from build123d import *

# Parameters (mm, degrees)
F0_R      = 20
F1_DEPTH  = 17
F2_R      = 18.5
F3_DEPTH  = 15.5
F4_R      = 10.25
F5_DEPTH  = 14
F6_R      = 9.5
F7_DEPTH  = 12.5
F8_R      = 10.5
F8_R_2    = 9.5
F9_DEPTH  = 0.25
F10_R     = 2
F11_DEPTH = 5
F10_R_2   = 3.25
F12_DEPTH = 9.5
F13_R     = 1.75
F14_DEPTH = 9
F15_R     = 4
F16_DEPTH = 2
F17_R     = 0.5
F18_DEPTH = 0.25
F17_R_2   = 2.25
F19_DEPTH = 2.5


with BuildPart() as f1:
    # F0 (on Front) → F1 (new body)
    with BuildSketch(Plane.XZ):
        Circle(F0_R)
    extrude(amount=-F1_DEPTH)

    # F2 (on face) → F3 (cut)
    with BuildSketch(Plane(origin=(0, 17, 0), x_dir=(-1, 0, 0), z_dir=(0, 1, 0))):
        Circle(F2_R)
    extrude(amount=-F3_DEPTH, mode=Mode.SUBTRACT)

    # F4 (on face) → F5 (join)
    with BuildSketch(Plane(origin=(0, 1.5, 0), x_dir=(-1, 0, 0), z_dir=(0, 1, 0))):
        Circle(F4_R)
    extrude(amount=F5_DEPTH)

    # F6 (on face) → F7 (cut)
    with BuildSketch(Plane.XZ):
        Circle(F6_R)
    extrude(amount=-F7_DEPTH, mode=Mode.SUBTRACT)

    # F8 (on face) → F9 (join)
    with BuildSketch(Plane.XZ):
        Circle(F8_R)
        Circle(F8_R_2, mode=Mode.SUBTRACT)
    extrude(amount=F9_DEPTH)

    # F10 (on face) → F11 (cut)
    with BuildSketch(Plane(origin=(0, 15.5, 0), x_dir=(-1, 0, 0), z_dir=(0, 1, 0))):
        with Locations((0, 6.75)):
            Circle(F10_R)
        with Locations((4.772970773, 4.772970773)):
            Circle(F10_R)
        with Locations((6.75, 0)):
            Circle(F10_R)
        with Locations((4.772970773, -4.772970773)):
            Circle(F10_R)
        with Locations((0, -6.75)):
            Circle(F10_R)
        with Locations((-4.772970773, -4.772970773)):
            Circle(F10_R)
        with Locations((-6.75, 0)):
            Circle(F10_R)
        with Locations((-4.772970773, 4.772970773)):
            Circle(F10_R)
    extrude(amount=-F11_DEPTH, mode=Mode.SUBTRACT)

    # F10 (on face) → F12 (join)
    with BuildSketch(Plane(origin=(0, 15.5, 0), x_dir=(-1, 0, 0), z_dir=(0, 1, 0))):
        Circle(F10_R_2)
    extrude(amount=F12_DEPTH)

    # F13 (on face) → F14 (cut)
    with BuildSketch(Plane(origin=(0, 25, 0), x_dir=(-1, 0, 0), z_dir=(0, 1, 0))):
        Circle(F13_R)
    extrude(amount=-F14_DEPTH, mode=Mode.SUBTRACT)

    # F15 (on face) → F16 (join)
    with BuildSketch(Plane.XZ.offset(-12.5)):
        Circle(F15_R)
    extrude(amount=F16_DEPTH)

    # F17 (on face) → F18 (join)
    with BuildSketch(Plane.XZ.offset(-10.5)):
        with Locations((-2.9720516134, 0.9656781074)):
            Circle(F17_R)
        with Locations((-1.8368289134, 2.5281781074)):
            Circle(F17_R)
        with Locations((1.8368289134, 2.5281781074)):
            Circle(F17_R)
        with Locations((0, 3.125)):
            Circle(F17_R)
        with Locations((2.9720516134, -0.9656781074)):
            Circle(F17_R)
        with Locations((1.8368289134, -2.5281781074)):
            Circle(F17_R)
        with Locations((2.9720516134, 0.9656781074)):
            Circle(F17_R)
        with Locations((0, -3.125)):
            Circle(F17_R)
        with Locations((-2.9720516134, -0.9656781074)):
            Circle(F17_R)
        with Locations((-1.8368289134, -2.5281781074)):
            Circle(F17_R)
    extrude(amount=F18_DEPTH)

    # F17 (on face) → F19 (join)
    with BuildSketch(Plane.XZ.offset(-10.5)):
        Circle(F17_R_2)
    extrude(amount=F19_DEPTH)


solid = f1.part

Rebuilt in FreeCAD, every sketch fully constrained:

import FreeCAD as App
import Part
import Sketcher
from FreeCAD import Vector
Q = App.Units.Quantity

doc = App.newDocument("Part")
body = doc.addObject("PartDesign::Body", "Body")

sketch1 = doc.addObject("Sketcher::SketchObject", "Sketch")
body.addObject(sketch1)
sketch1.AttachmentSupport = (doc.XZ_Plane, [""])
sketch1.MapMode = "FlatFace"
sketch1.addGeometry(Part.Circle(Vector(0, 0, 0), Vector(0, 0, 1), 20), False)
sketch1.addConstraint(Sketcher.Constraint("Coincident", 0, 3, -1, 1))
sketch1.addConstraint(Sketcher.Constraint("Diameter", 0, Q("40 mm")))
pad1 = doc.addObject("PartDesign::Pad", "Pad")
body.addObject(pad1)
pad1.Profile = sketch1
pad1.Length = 17
pad1.Reversed = True

sketch2 = doc.addObject("Sketcher::SketchObject", "Sketch001")
body.addObject(sketch2)
sketch2.AttachmentSupport = (doc.XZ_Plane, [""])
sketch2.MapMode = "FlatFace"
sketch2.AttachmentOffset = App.Placement(Vector(0, 0, -17), App.Rotation())
sketch2.addGeometry(Part.Circle(Vector(0, 0, 0), Vector(0, 0, 1), 18.5), False)
sketch2.addConstraint(Sketcher.Constraint("Coincident", 0, 3, -1, 1))
sketch2.addConstraint(Sketcher.Constraint("Diameter", 0, Q("37 mm")))
pocket1 = doc.addObject("PartDesign::Pocket", "Pocket")
body.addObject(pocket1)
pocket1.Profile = sketch2
pocket1.Length = 15.5
pocket1.Reversed = True

sketch3 = doc.addObject("Sketcher::SketchObject", "Sketch002")
body.addObject(sketch3)
sketch3.AttachmentSupport = (doc.XZ_Plane, [""])
sketch3.MapMode = "FlatFace"
sketch3.AttachmentOffset = App.Placement(Vector(0, 0, -1.5), App.Rotation())
sketch3.addGeometry(Part.Circle(Vector(0, 0, 0), Vector(0, 0, 1), 10.25), False)
sketch3.addConstraint(Sketcher.Constraint("Coincident", 0, 3, -1, 1))
sketch3.addConstraint(Sketcher.Constraint("Diameter", 0, Q("20.5 mm")))
pad2 = doc.addObject("PartDesign::Pad", "Pad001")
body.addObject(pad2)
pad2.Profile = sketch3
pad2.Length = 14
pad2.Reversed = True

sketch4 = doc.addObject("Sketcher::SketchObject", "Sketch003")
body.addObject(sketch4)
sketch4.AttachmentSupport = (doc.XZ_Plane, [""])
sketch4.MapMode = "FlatFace"
sketch4.addGeometry(Part.Circle(Vector(0, 0, 0), Vector(0, 0, 1), 9.5), False)
sketch4.addConstraint(Sketcher.Constraint("Coincident", 0, 3, -1, 1))
sketch4.addConstraint(Sketcher.Constraint("Diameter", 0, Q("19 mm")))
pocket2 = doc.addObject("PartDesign::Pocket", "Pocket001")
body.addObject(pocket2)
pocket2.Profile = sketch4
pocket2.Length = 12.5

sketch5 = doc.addObject("Sketcher::SketchObject", "Sketch004")
body.addObject(sketch5)
sketch5.AttachmentSupport = (doc.XZ_Plane, [""])
sketch5.MapMode = "FlatFace"
sketch5.addGeometry(Part.Circle(Vector(0, 0, 0), Vector(0, 0, 1), 10.5), False)
sketch5.addGeometry(Part.Circle(Vector(0, 0, 0), Vector(0, 0, 1), 9.5), False)
sketch5.addConstraint(Sketcher.Constraint("Coincident", 0, 3, -1, 1))
sketch5.addConstraint(Sketcher.Constraint("Coincident", 1, 3, -1, 1))
sketch5.addConstraint(Sketcher.Constraint("Diameter", 0, Q("21 mm")))
sketch5.addConstraint(Sketcher.Constraint("Diameter", 1, Q("19 mm")))
pad3 = doc.addObject("PartDesign::Pad", "Pad002")
body.addObject(pad3)
pad3.Profile = sketch5
pad3.Length = 0.25

sketch6 = doc.addObject("Sketcher::SketchObject", "Sketch005")
body.addObject(sketch6)
sketch6.AttachmentSupport = (doc.XZ_Plane, [""])
sketch6.MapMode = "FlatFace"
sketch6.AttachmentOffset = App.Placement(Vector(0, 0, -15.5), App.Rotation())
sketch6.addGeometry(Part.Circle(Vector(0, 6.75, 0), Vector(0, 0, 1), 2), False)
sketch6.addGeometry(Part.Circle(Vector(-4.772971, 4.772971, 0), Vector(0, 0, 1), 2), False)
sketch6.addGeometry(Part.Circle(Vector(-6.75, 0, 0), Vector(0, 0, 1), 2), False)
sketch6.addGeometry(Part.Circle(Vector(-4.772971, -4.772971, 0), Vector(0, 0, 1), 2), False)
sketch6.addGeometry(Part.Circle(Vector(0, -6.75, 0), Vector(0, 0, 1), 2), False)
sketch6.addGeometry(Part.Circle(Vector(4.772971, -4.772971, 0), Vector(0, 0, 1), 2), False)
sketch6.addGeometry(Part.Circle(Vector(6.75, 0, 0), Vector(0, 0, 1), 2), False)
sketch6.addGeometry(Part.Circle(Vector(4.772971, 4.772971, 0), Vector(0, 0, 1), 2), False)
sketch6.addConstraint(Sketcher.Constraint("Equal", 0, 1))
sketch6.addConstraint(Sketcher.Constraint("Equal", 1, 2))
sketch6.addConstraint(Sketcher.Constraint("Equal", 2, 3))
sketch6.addConstraint(Sketcher.Constraint("Equal", 3, 4))
sketch6.addConstraint(Sketcher.Constraint("Equal", 4, 5))
sketch6.addConstraint(Sketcher.Constraint("Equal", 5, 6))
sketch6.addConstraint(Sketcher.Constraint("Equal", 6, 7))
sketch6.addConstraint(Sketcher.Constraint("Symmetric", 0, 3, 4, 3, -1, 1))
sketch6.addConstraint(Sketcher.Constraint("Symmetric", 1, 3, 5, 3, -1, 1))
sketch6.addConstraint(Sketcher.Constraint("Symmetric", 2, 3, 6, 3, -1, 1))
sketch6.addConstraint(Sketcher.Constraint("Symmetric", 3, 3, 7, 3, -1, 1))
sketch6.addConstraint(Sketcher.Constraint("Symmetric", 3, 3, 5, 3, -2))
sketch6.addConstraint(Sketcher.Constraint("PointOnObject", 0, 3, -2))
sketch6.addConstraint(Sketcher.Constraint("PointOnObject", 2, 3, -1))
sketch6.addConstraint(Sketcher.Constraint("Diameter", 0, Q("4 mm")))
sketch6.addConstraint(Sketcher.Constraint("DistanceY", 4, 3, 0, 3, Q("13.5 mm")))
sketch6.addConstraint(Sketcher.Constraint("DistanceX", 2, 3, -1, 1, Q("6.75 mm")))
sketch6.addConstraint(Sketcher.Constraint("DistanceX", 1, 3, -1, 1, Q("4.772971 mm")))
sketch6.addConstraint(Sketcher.Constraint("DistanceY", -1, 1, 1, 3, Q("4.772971 mm")))
pocket3 = doc.addObject("PartDesign::Pocket", "Pocket002")
body.addObject(pocket3)
pocket3.Profile = sketch6
pocket3.Length = 5
pocket3.Reversed = True

sketch7 = doc.addObject("Sketcher::SketchObject", "Sketch006")
body.addObject(sketch7)
sketch7.AttachmentSupport = (doc.XZ_Plane, [""])
sketch7.MapMode = "FlatFace"
sketch7.AttachmentOffset = App.Placement(Vector(0, 0, -15.5), App.Rotation())
sketch7.addGeometry(Part.Circle(Vector(0, 0, 0), Vector(0, 0, 1), 3.25), False)
sketch7.addConstraint(Sketcher.Constraint("Coincident", 0, 3, -1, 1))
sketch7.addConstraint(Sketcher.Constraint("Diameter", 0, Q("6.5 mm")))
pad4 = doc.addObject("PartDesign::Pad", "Pad003")
body.addObject(pad4)
pad4.Profile = sketch7
pad4.Length = 9.5
pad4.Reversed = True

sketch8 = doc.addObject("Sketcher::SketchObject", "Sketch007")
body.addObject(sketch8)
sketch8.AttachmentSupport = (doc.XZ_Plane, [""])
sketch8.MapMode = "FlatFace"
sketch8.AttachmentOffset = App.Placement(Vector(0, 0, -25), App.Rotation())
sketch8.addGeometry(Part.Circle(Vector(0, 0, 0), Vector(0, 0, 1), 1.75), False)
sketch8.addConstraint(Sketcher.Constraint("Coincident", 0, 3, -1, 1))
sketch8.addConstraint(Sketcher.Constraint("Diameter", 0, Q("3.5 mm")))
pocket4 = doc.addObject("PartDesign::Pocket", "Pocket003")
body.addObject(pocket4)
pocket4.Profile = sketch8
pocket4.Length = 9
pocket4.Reversed = True

sketch9 = doc.addObject("Sketcher::SketchObject", "Sketch008")
body.addObject(sketch9)
sketch9.AttachmentSupport = (doc.XZ_Plane, [""])
sketch9.MapMode = "FlatFace"
sketch9.AttachmentOffset = App.Placement(Vector(0, 0, -12.5), App.Rotation())
sketch9.addGeometry(Part.Circle(Vector(0, 0, 0), Vector(0, 0, 1), 4), False)
sketch9.addConstraint(Sketcher.Constraint("Coincident", 0, 3, -1, 1))
sketch9.addConstraint(Sketcher.Constraint("Diameter", 0, Q("8 mm")))
pad5 = doc.addObject("PartDesign::Pad", "Pad004")
body.addObject(pad5)
pad5.Profile = sketch9
pad5.Length = 2

sketch10 = doc.addObject("Sketcher::SketchObject", "Sketch009")
body.addObject(sketch10)
sketch10.AttachmentSupport = (doc.XZ_Plane, [""])
sketch10.MapMode = "FlatFace"
sketch10.AttachmentOffset = App.Placement(Vector(0, 0, -10.5), App.Rotation())
sketch10.addGeometry(Part.Circle(Vector(-2.972052, 0.965678, 0), Vector(0, 0, 1), 0.5), False)
sketch10.addGeometry(Part.Circle(Vector(-1.836829, 2.528178, 0), Vector(0, 0, 1), 0.5), False)
sketch10.addGeometry(Part.Circle(Vector(1.836829, 2.528178, 0), Vector(0, 0, 1), 0.5), False)
sketch10.addGeometry(Part.Circle(Vector(0, 3.125, 0), Vector(0, 0, 1), 0.5), False)
sketch10.addGeometry(Part.Circle(Vector(2.972052, -0.965678, 0), Vector(0, 0, 1), 0.5), False)
sketch10.addGeometry(Part.Circle(Vector(1.836829, -2.528178, 0), Vector(0, 0, 1), 0.5), False)
sketch10.addGeometry(Part.Circle(Vector(2.972052, 0.965678, 0), Vector(0, 0, 1), 0.5), False)
sketch10.addGeometry(Part.Circle(Vector(0, -3.125, 0), Vector(0, 0, 1), 0.5), False)
sketch10.addGeometry(Part.Circle(Vector(-2.972052, -0.965678, 0), Vector(0, 0, 1), 0.5), False)
sketch10.addGeometry(Part.Circle(Vector(-1.836829, -2.528178, 0), Vector(0, 0, 1), 0.5), False)
sketch10.addConstraint(Sketcher.Constraint("Equal", 0, 1))
sketch10.addConstraint(Sketcher.Constraint("Equal", 1, 2))
sketch10.addConstraint(Sketcher.Constraint("Equal", 2, 3))
sketch10.addConstraint(Sketcher.Constraint("Equal", 3, 4))
sketch10.addConstraint(Sketcher.Constraint("Equal", 4, 5))
sketch10.addConstraint(Sketcher.Constraint("Equal", 5, 6))
sketch10.addConstraint(Sketcher.Constraint("Equal", 6, 7))
sketch10.addConstraint(Sketcher.Constraint("Equal", 7, 8))
sketch10.addConstraint(Sketcher.Constraint("Equal", 8, 9))
sketch10.addConstraint(Sketcher.Constraint("Symmetric", 0, 3, 4, 3, -1, 1))
sketch10.addConstraint(Sketcher.Constraint("Symmetric", 1, 3, 5, 3, -1, 1))
sketch10.addConstraint(Sketcher.Constraint("Symmetric", 3, 3, 7, 3, -1, 1))
sketch10.addConstraint(Sketcher.Constraint("Symmetric", 6, 3, 8, 3, -1, 1))
sketch10.addConstraint(Sketcher.Constraint("Symmetric", 2, 3, 9, 3, -1, 1))
sketch10.addConstraint(Sketcher.Constraint("Symmetric", 1, 3, 2, 3, -2))
sketch10.addConstraint(Sketcher.Constraint("Symmetric", 0, 3, 6, 3, -2))
sketch10.addConstraint(Sketcher.Constraint("PointOnObject", 3, 3, -2))
sketch10.addConstraint(Sketcher.Constraint("Diameter", 0, Q("1 mm")))
sketch10.addConstraint(Sketcher.Constraint("DistanceY", -1, 1, 3, 3, Q("3.125 mm")))
sketch10.addConstraint(Sketcher.Constraint("DistanceY", 0, 3, 1, 3, Q("1.5625 mm")))
sketch10.addConstraint(Sketcher.Constraint("DistanceX", 0, 3, -1, 1, Q("2.972052 mm")))
sketch10.addConstraint(Sketcher.Constraint("DistanceY", -1, 1, 0, 3, Q("0.965678 mm")))
sketch10.addConstraint(Sketcher.Constraint("DistanceX", 1, 3, -1, 1, Q("1.836829 mm")))
pad6 = doc.addObject("PartDesign::Pad", "Pad005")
body.addObject(pad6)
pad6.Profile = sketch10
pad6.Length = 0.25

sketch11 = doc.addObject("Sketcher::SketchObject", "Sketch010")
body.addObject(sketch11)
sketch11.AttachmentSupport = (doc.XZ_Plane, [""])
sketch11.MapMode = "FlatFace"
sketch11.AttachmentOffset = App.Placement(Vector(0, 0, -10.5), App.Rotation())
sketch11.addGeometry(Part.Circle(Vector(0, 0, 0), Vector(0, 0, 1), 2.25), False)
sketch11.addConstraint(Sketcher.Constraint("Coincident", 0, 3, -1, 1))
sketch11.addConstraint(Sketcher.Constraint("Diameter", 0, Q("4.5 mm")))
pad7 = doc.addObject("PartDesign::Pad", "Pad006")
body.addObject(pad7)
pad7.Profile = sketch11
pad7.Length = 2.5

doc.recompute()
